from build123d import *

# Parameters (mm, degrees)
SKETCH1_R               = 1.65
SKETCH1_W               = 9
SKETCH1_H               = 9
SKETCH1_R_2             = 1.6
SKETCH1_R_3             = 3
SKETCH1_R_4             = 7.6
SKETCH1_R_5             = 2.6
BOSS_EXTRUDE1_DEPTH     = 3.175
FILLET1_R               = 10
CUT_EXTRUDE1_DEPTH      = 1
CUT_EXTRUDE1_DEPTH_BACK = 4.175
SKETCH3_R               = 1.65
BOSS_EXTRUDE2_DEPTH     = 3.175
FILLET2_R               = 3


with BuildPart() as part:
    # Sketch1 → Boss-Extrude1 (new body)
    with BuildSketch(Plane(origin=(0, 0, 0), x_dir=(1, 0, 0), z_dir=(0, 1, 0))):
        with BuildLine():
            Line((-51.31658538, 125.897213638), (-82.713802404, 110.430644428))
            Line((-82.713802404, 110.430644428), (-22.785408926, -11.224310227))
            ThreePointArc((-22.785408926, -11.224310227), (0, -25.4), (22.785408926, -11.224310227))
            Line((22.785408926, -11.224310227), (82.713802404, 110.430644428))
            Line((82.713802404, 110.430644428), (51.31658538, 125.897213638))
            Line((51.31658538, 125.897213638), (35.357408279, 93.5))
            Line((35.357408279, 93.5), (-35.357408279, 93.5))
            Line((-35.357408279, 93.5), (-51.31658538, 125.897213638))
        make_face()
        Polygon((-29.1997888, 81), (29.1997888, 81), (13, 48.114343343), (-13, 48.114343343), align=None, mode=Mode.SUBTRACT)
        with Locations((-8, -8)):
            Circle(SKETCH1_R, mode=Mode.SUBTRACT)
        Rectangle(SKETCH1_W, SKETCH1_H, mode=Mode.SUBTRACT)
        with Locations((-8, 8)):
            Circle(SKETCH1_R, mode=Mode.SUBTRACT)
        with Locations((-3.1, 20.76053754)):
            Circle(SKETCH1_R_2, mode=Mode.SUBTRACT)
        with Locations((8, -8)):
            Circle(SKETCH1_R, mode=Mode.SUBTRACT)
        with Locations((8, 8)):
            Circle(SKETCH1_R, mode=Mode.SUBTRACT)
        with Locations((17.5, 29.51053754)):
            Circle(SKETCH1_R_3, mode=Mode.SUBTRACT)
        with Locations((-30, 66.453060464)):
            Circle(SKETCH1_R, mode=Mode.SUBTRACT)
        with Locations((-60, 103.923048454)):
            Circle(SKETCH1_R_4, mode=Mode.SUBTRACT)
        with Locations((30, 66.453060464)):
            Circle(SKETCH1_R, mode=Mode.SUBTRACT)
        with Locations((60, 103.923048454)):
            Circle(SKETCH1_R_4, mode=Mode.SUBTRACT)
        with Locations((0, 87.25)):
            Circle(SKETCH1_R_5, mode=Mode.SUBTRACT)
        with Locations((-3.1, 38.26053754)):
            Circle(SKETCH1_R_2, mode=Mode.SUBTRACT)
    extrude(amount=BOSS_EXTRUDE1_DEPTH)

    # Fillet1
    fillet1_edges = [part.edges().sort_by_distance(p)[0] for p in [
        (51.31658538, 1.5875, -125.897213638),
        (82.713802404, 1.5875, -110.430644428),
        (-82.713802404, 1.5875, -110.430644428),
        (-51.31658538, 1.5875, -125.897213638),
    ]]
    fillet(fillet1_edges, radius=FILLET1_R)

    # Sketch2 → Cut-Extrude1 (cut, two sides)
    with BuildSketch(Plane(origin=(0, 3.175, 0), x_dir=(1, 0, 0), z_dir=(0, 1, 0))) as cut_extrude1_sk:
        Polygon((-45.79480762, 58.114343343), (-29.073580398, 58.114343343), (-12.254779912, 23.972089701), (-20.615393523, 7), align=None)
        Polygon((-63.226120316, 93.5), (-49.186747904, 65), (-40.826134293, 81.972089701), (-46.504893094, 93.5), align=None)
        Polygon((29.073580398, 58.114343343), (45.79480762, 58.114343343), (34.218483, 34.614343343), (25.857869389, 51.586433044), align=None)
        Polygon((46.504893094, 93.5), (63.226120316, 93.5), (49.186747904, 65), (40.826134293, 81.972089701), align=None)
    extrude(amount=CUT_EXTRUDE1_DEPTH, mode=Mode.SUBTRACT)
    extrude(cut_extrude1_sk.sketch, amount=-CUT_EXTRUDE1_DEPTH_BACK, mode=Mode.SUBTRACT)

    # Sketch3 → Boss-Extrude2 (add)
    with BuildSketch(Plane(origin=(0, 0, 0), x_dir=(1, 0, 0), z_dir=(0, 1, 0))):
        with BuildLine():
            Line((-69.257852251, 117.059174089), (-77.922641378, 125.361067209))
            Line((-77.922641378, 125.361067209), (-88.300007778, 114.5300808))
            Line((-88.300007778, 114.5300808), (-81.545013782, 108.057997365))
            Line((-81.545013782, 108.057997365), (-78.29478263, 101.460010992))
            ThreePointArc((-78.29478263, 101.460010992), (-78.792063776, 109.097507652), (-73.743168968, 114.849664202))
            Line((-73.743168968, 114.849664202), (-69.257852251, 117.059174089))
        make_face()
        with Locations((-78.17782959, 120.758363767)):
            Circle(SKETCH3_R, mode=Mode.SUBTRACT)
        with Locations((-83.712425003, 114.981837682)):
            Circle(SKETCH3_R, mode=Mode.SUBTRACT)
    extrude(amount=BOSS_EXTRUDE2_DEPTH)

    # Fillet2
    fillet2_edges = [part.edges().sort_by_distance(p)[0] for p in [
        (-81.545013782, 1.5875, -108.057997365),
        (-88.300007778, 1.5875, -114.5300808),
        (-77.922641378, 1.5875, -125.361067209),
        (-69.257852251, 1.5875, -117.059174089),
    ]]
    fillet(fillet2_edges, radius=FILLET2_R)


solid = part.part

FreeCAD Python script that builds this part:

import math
import FreeCAD as App
import Part
import Sketcher
from FreeCAD import Vector
Q = App.Units.Quantity


def edges_at(feature, points):
    """Names of the edges that pass closest to the given points."""
    edges = feature.Shape.Edges
    near = lambda p: min(range(len(edges)), key=lambda i: edges[i].distToShape(Part.Vertex(*p))[0])
    return sorted({f"Edge{near(p) + 1}" for p in points})

doc = App.newDocument("Part")
body = doc.addObject("PartDesign::Body", "Body")

# Sketch on XZ plane
sketch1 = doc.addObject("Sketcher::SketchObject", "Sketch")
body.addObject(sketch1)
sketch1.AttachmentSupport = (doc.XZ_Plane, [""])
sketch1.MapMode = "FlatFace"
sketch1.addGeometry([
    Part.LineSegment(Vector(-51.3, -125.9, 0), Vector(-82.7, -110.4, 0)),  # 0
    Part.LineSegment(Vector(-82.7, -110.4, 0), Vector(-22.8, 11.2, 0)),  # 1
    Part.ArcOfCircle(Part.Circle(Vector(0, 0, 0), Vector(0, 0, 1), 25.4), math.radians(26), math.radians(154)),  # 2
    Part.LineSegment(Vector(22.8, 11.2, 0), Vector(82.7, -110.4, 0)),  # 3
    Part.LineSegment(Vector(82.7, -110.4, 0), Vector(51.3, -125.9, 0)),  # 4
    Part.LineSegment(Vector(51.3, -125.9, 0), Vector(35.4, -93.5, 0)),  # 5
    Part.LineSegment(Vector(35.4, -93.5, 0), Vector(-35.4, -93.5, 0)),  # 6
    Part.LineSegment(Vector(-35.4, -93.5, 0), Vector(-51.3, -125.9, 0)),  # 7
    Part.Circle(Vector(-8, 8, 0), Vector(0, 0, 1), 1.6),  # 8
    Part.Circle(Vector(-8, -8, 0), Vector(0, 0, 1), 1.6),  # 9
    Part.Circle(Vector(-3.1, -20.8, 0), Vector(0, 0, 1), 1.6),  # 10
    Part.Circle(Vector(-3.1, -38.3, 0), Vector(0, 0, 1), 1.6),  # 11
    Part.Circle(Vector(8, 8, 0), Vector(0, 0, 1), 1.6),  # 12
    Part.LineSegment(Vector(4.5, 4.5, 0), Vector(-4.5, 4.5, 0)),  # 13
    Part.LineSegment(Vector(-4.5, 4.5, 0), Vector(-4.5, -4.5, 0)),  # 14
    Part.LineSegment(Vector(-4.5, -4.5, 0), Vector(4.5, -4.5, 0)),  # 15
    Part.LineSegment(Vector(4.5, -4.5, 0), Vector(4.5, 4.5, 0)),  # 16
    Part.Circle(Vector(8, -8, 0), Vector(0, 0, 1), 1.6),  # 17
    Part.Circle(Vector(17.5, -29.5, 0), Vector(0, 0, 1), 3),  # 18
    Part.Circle(Vector(-30, -66.5, 0), Vector(0, 0, 1), 1.6),  # 19
    Part.Circle(Vector(-60, -103.9, 0), Vector(0, 0, 1), 7.6),  # 20
    Part.LineSegment(Vector(-13, -48.1, 0), Vector(-29.2, -81, 0)),  # 21
    Part.LineSegment(Vector(-29.2, -81, 0), Vector(29.2, -81, 0)),  # 22
    Part.LineSegment(Vector(29.2, -81, 0), Vector(13, -48.1, 0)),  # 23
    Part.LineSegment(Vector(13, -48.1, 0), Vector(-13, -48.1, 0)),  # 24
    Part.Circle(Vector(30, -66.5, 0), Vector(0, 0, 1), 1.6),  # 25
    Part.Circle(Vector(0, -87.2, 0), Vector(0, 0, 1), 2.6),  # 26
    Part.Circle(Vector(60, -103.9, 0), Vector(0, 0, 1), 7.6),  # 27
], False)
sketch1.addConstraint([
    Sketcher.Constraint("Coincident", 0, 2, 1, 1),
    Sketcher.Constraint("Tangent", 1, 2, 2, 2),
    Sketcher.Constraint("Tangent", 2, 1, 3, 1),
    Sketcher.Constraint("Coincident", 3, 2, 4, 1),
    Sketcher.Constraint("Coincident", 4, 2, 5, 1),
    Sketcher.Constraint("Coincident", 5, 2, 6, 1),
    Sketcher.Constraint("Coincident", 6, 2, 7, 1),
    Sketcher.Constraint("Coincident", 7, 2, 0, 1),
    Sketcher.Constraint("Coincident", 13, 2, 14, 1),
    Sketcher.Constraint("Coincident", 14, 2, 15, 1),
    Sketcher.Constraint("Coincident", 15, 2, 16, 1),
    Sketcher.Constraint("Coincident", 16, 2, 13, 1),
    Sketcher.Constraint("Coincident", 21, 2, 22, 1),
    Sketcher.Constraint("Coincident", 22, 2, 23, 1),
    Sketcher.Constraint("Coincident", 23, 2, 24, 1),
    Sketcher.Constraint("Coincident", 24, 2, 21, 1),
    Sketcher.Constraint("Horizontal", 6),
    Sketcher.Constraint("Horizontal", 13),
    Sketcher.Constraint("Vertical", 14),
    Sketcher.Constraint("Horizontal", 15),
    Sketcher.Constraint("Vertical", 16),
    Sketcher.Constraint("Horizontal", 22),
    Sketcher.Constraint("Horizontal", 24),
    Sketcher.Constraint("Coincident", 2, 3, -1, 1),
    Sketcher.Constraint("Equal", 8, 9),
    Sketcher.Constraint("Equal", 10, 11),
    Sketcher.Constraint("Equal", 9, 12),
    Sketcher.Constraint("Equal", 12, 17),
    Sketcher.Constraint("Equal", 17, 19),
    Sketcher.Constraint("Equal", 19, 25),
    Sketcher.Constraint("Equal", 20, 27),
    Sketcher.Constraint("Symmetric", 9, 3, 12, 3, -1, 1),
    Sketcher.Constraint("Symmetric", 8, 3, 17, 3, -1, 1),
    Sketcher.Constraint("Symmetric", 13, 2, 15, 2, -1, 1),
    Sketcher.Constraint("Symmetric", 8, 3, 12, 3, -2),
    Sketcher.Constraint("Symmetric", 19, 3, 25, 3, -2),
    Sketcher.Constraint("Symmetric", 20, 3, 27, 3, -2),
    Sketcher.Constraint("Symmetric", 0, 2, 3, 2, -2),
    Sketcher.Constraint("Symmetric", 4, 2, 7, 2, -2),
    Sketcher.Constraint("PointOnObject", 26, 3, -2),
    Sketcher.Constraint("Perpendicular", 0, 1),
    Sketcher.Constraint("Perpendicular", 4, 5),
    Sketcher.Constraint("Parallel", 1, 7),
    Sketcher.Constraint("Parallel", 7, 21),
    Sketcher.Constraint("Parallel", 5, 23),
    Sketcher.Constraint("Vertical", 10, 3, 11, 3),
    Sketcher.Constraint("Equal", 15, 14),
    Sketcher.Constraint("Diameter", 18, Q("6 mm")),
    Sketcher.Constraint("Diameter", 8, Q("3.3 mm")),
    Sketcher.Constraint("Diameter", 10, Q("3.2 mm")),
    Sketcher.Constraint("Diameter", 20, Q("15.2 mm")),
    Sketcher.Constraint("Diameter", 26, Q("5.2 mm")),
    Sketcher.Constraint("Radius", 2, Q("25.4 mm")),
    Sketcher.Constraint("DistanceX", 13, 2, 13, 1, Q("9 mm")),
    Sketcher.Constraint("DistanceX", 24, 2, 24, 1, Q("26 mm")),
    Sketcher.Constraint("Distance", 0, Q("35 mm")),
    Sketcher.Constraint("DistanceX", 8, 3, -1, 1, Q("8 mm")),
    Sketcher.Constraint("DistanceY", -1, 1, 8, 3, Q("8 mm")),
    Sketcher.Constraint("DistanceX", 19, 3, -1, 1, Q("30 mm")),
    Sketcher.Constraint("DistanceX", 20, 3, -1, 1, Q("60 mm")),
    Sketcher.Constraint("DistanceY", 21, 2, -1, 1, Q("81 mm")),
    Sketcher.Constraint("DistanceX", -1, 1, 23, 2, Q("13 mm")),
    Sketcher.Constraint("DistanceX", 10, 3, -1, 1, Q("3.1 mm")),
    Sketcher.Constraint("DistanceX", -1, 1, 18, 3, Q("17.5 mm")),
    Sketcher.Constraint("DistanceY", 5, 2, -1, 1, Q("93.5 mm")),
    Sketcher.Constraint("DistanceY", 11, 3, 10, 3, Q("17.5 mm")),
    Sketcher.Constraint("DistanceY", 26, 3, -1, 1, Q("87.25 mm")),
    Sketcher.Constraint("DistanceY", 18, 3, 10, 3, Q("8.75 mm")),
    Sketcher.Constraint("DistanceX", 6, 2, 6, 1, Q("70.714817 mm")),
    Sketcher.Constraint("DistanceX", 22, 1, 22, 2, Q("58.399578 mm")),
    Sketcher.Constraint("DistanceY", 19, 3, -1, 1, Q("66.45306 mm")),
    Sketcher.Constraint("DistanceY", 20, 3, -1, 1, Q("103.923048 mm")),
    Sketcher.Constraint("DistanceY", 20, 3, 11, 3, Q("65.662511 mm")),
    Sketcher.Constraint("Distance", 1, Q("135.614676 mm")),
])
pad1 = doc.addObject("PartDesign::Pad", "Pad")
body.addObject(pad1)
pad1.Profile = sketch1
pad1.Length = 3.175
pad1.Reversed = True
doc.recompute()

fillet = doc.addObject("PartDesign::Fillet", "Fillet")
body.addObject(fillet)
fillet.Base = (pad1, edges_at(pad1, [
    (51.317, 1.587, -125.897),
    (82.714, 1.587, -110.431),
    (-82.714, 1.587, -110.431),
    (-51.317, 1.587, -125.897),
]))
fillet.Radius = 10

# Sketch on XZ plane
sketch2 = doc.addObject("Sketcher::SketchObject", "Sketch001")
body.addObject(sketch2)
sketch2.AttachmentSupport = (doc.XZ_Plane, [""])
sketch2.MapMode = "FlatFace"
sketch2.AttachmentOffset = App.Placement(Vector(0, 0, -3.175), App.Rotation())
sketch2.addGeometry([
    Part.LineSegment(Vector(-29, -58, 0), Vector(-46, -58, 0)),  # 0
    Part.LineSegment(Vector(-46, -58, 0), Vector(-21, -7, 0)),  # 1
    Part.LineSegment(Vector(-21, -7, 0), Vector(-12, -24, 0)),  # 2
    Part.LineSegment(Vector(-12, -24, 0), Vector(-29, -58, 0)),  # 3
    Part.LineSegment(Vector(-63, -94, 0), Vector(-49, -65, 0)),  # 4
    Part.LineSegment(Vector(-49, -65, 0), Vector(-41, -82, 0)),  # 5
    Part.LineSegment(Vector(-41, -82, 0), Vector(-47, -94, 0)),  # 6
    Part.LineSegment(Vector(-47, -94, 0), Vector(-63, -94, 0)),  # 7
    Part.LineSegment(Vector(46, -58, 0), Vector(29, -58, 0)),  # 8
    Part.LineSegment(Vector(29, -58, 0), Vector(26, -52, 0)),  # 9
    Part.LineSegment(Vector(26, -52, 0), Vector(34, -35, 0)),  # 10
    Part.LineSegment(Vector(34, -35, 0), Vector(46, -58, 0)),  # 11
    Part.LineSegment(Vector(63, -94, 0), Vector(47, -94, 0)),  # 12
    Part.LineSegment(Vector(47, -94, 0), Vector(41, -82, 0)),  # 13
    Part.LineSegment(Vector(41, -82, 0), Vector(49, -65, 0)),  # 14
    Part.LineSegment(Vector(49, -65, 0), Vector(63, -94, 0)),  # 15
], False)
sketch2.addConstraint([
    Sketcher.Constraint("Coincident", 0, 2, 1, 1),
    Sketcher.Constraint("Coincident", 1, 2, 2, 1),
    Sketcher.Constraint("Coincident", 2, 2, 3, 1),
    Sketcher.Constraint("Coincident", 3, 2, 0, 1),
    Sketcher.Constraint("Coincident", 4, 2, 5, 1),
    Sketcher.Constraint("Coincident", 5, 2, 6, 1),
    Sketcher.Constraint("Coincident", 6, 2, 7, 1),
    Sketcher.Constraint("Coincident", 7, 2, 4, 1),
    Sketcher.Constraint("Coincident", 8, 2, 9, 1),
    Sketcher.Constraint("Coincident", 9, 2, 10, 1),
    Sketcher.Constraint("Coincident", 10, 2, 11, 1),
    Sketcher.Constraint("Coincident", 11, 2, 8, 1),
    Sketcher.Constraint("Coincident", 12, 2, 13, 1),
    Sketcher.Constraint("Coincident", 13, 2, 14, 1),
    Sketcher.Constraint("Coincident", 14, 2, 15, 1),
    Sketcher.Constraint("Coincident", 15, 2, 12, 1),
    Sketcher.Constraint("Horizontal", 0),
    Sketcher.Constraint("Horizontal", 7),
    Sketcher.Constraint("Horizontal", 8),
    Sketcher.Constraint("Horizontal", 12),
    Sketcher.Constraint("Symmetric", 3, 2, 8, 2, -2),
    Sketcher.Constraint("Symmetric", 6, 2, 12, 2, -2),
    Sketcher.Constraint("Symmetric", 5, 2, 13, 2, -2),
    Sketcher.Constraint("Symmetric", 4, 2, 14, 2, -2),
    Sketcher.Constraint("Parallel", 1, 3),
    Sketcher.Constraint("Parallel", 3, 4),
    Sketcher.Constraint("Parallel", 2, 5),
    Sketcher.Constraint("Parallel", 4, 6),
    Sketcher.Constraint("Parallel", 5, 9),
    Sketcher.Constraint("Parallel", 6, 10),
    Sketcher.Constraint("Parallel", 9, 11),
    Sketcher.Constraint("Parallel", 11, 13),
    Sketcher.Constraint("Parallel", 13, 15),
    Sketcher.Constraint("Equal", 0, 7),
    Sketcher.Constraint("Equal", 7, 8),
    Sketcher.Constraint("DistanceY", 1, 2, -1, 1, Q("7 mm")),
    Sketcher.Constraint("DistanceY", 4, 2, -1, 1, Q("65 mm")),
    Sketcher.Constraint("DistanceY", 6, 2, -1, 1, Q("93.5 mm")),
    Sketcher.Constraint("DistanceY", 8, 2, 10, 2, Q("23.5 mm")),
    Sketcher.Constraint("DistanceX", 3, 2, 2, 2, Q("16.8188 mm")),
    Sketcher.Constraint("Distance", 2, Q("18.919611 mm")),
    Sketcher.Constraint("Distance", 4, Q("31.770332 mm")),
    Sketcher.Constraint("DistanceX", 2, 2, -1, 1, Q("12.25478 mm")),
    Sketcher.Constraint("DistanceX", 7, 2, -1, 1, Q("63.22612 mm")),
])
pocket1 = doc.addObject("PartDesign::Pocket", "Pocket")
body.addObject(pocket1)
pocket1.Profile = sketch2
pocket1.Type = "ThroughAll"
pocket1.Midplane = True

# Sketch on XZ plane
sketch3 = doc.addObject("Sketcher::SketchObject", "Sketch002")
body.addObject(sketch3)
sketch3.AttachmentSupport = (doc.XZ_Plane, [""])
sketch3.MapMode = "FlatFace"
sketch3.addGeometry([
    Part.LineSegment(Vector(-69.3, -117.1, 0), Vector(-77.9, -125.4, 0)),  # 0
    Part.LineSegment(Vector(-77.9, -125.4, 0), Vector(-88.3, -114.5, 0)),  # 1
    Part.LineSegment(Vector(-88.3, -114.5, 0), Vector(-81.5, -108.1, 0)),  # 2
    Part.LineSegment(Vector(-81.5, -108.1, 0), Vector(-78.3, -101.5, 0)),  # 3
    Part.ArcOfCircle(Part.Circle(Vector(-69.3, -105.9, 0), Vector(0, 0, 1), 10), math.radians(154), math.radians(244)),  # 4
    Part.LineSegment(Vector(-73.7, -114.8, 0), Vector(-69.3, -117.1, 0)),  # 5
    Part.Circle(Vector(-83.7, -115, 0), Vector(0, 0, 1), 1.6),  # 6
    Part.Circle(Vector(-78.2, -120.8, 0), Vector(0, 0, 1), 1.6),  # 7
], False)
sketch3.addConstraint([
    Sketcher.Constraint("Coincident", 0, 2, 1, 1),
    Sketcher.Constraint("Coincident", 1, 2, 2, 1),
    Sketcher.Constraint("Coincident", 2, 2, 3, 1),
    Sketcher.Constraint("Tangent", 3, 2, 4, 1),
    Sketcher.Constraint("Tangent", 4, 2, 5, 1),
    Sketcher.Constraint("Coincident", 5, 2, 0, 1),
    Sketcher.Constraint("Equal", 6, 7),
    Sketcher.Constraint("Perpendicular", 0, 1),
    Sketcher.Constraint("Perpendicular", 1, 2),
    Sketcher.Constraint("Perpendicular", 3, 5),
    Sketcher.Constraint("Radius", 4, Q("10 mm")),
    Sketcher.Constraint("Diameter", 6, Q("3.3 mm")),
    Sketcher.Constraint("Distance", 0, Q("12 mm")),
    Sketcher.Constraint("Distance", 1, Q("15 mm")),
    Sketcher.Constraint("Distance", 5, Q("5 mm")),
    Sketcher.Constraint("DistanceY", 7, 3, 4, 2, Q("5.9087 mm")),
    Sketcher.Constraint("DistanceX", 4, 3, -1, 1, Q("69.324149 mm")),
    Sketcher.Constraint("DistanceY", 4, 3, -1, 1, Q("105.879031 mm")),
    Sketcher.Constraint("DistanceX", 7, 3, -1, 1, Q("78.17783 mm")),
    Sketcher.Constraint("DistanceX", 0, 2, -1, 1, Q("77.922641 mm")),
    Sketcher.Constraint("DistanceY", 1, 2, -1, 1, Q("114.530081 mm")),
    Sketcher.Constraint("DistanceY", 0, 2, 6, 3, Q("10.37923 mm")),
    Sketcher.Constraint("DistanceX", 6, 3, 2, 2, Q("2.167411 mm")),
])
pad2 = doc.addObject("PartDesign::Pad", "Pad001")
body.addObject(pad2)
pad2.Profile = sketch3
pad2.Length = 3.175
pad2.Reversed = True
doc.recompute()

fillet2 = doc.addObject("PartDesign::Fillet", "Fillet001")
body.addObject(fillet2)
fillet2.Base = (pad2, edges_at(pad2, [
    (-81.545, 1.587, -108.058),
    (-88.3, 1.587, -114.53),
    (-77.923, 1.587, -125.361),
    (-69.258, 1.587, -117.059),
]))
fillet2.Radius = 3

doc.recompute()
